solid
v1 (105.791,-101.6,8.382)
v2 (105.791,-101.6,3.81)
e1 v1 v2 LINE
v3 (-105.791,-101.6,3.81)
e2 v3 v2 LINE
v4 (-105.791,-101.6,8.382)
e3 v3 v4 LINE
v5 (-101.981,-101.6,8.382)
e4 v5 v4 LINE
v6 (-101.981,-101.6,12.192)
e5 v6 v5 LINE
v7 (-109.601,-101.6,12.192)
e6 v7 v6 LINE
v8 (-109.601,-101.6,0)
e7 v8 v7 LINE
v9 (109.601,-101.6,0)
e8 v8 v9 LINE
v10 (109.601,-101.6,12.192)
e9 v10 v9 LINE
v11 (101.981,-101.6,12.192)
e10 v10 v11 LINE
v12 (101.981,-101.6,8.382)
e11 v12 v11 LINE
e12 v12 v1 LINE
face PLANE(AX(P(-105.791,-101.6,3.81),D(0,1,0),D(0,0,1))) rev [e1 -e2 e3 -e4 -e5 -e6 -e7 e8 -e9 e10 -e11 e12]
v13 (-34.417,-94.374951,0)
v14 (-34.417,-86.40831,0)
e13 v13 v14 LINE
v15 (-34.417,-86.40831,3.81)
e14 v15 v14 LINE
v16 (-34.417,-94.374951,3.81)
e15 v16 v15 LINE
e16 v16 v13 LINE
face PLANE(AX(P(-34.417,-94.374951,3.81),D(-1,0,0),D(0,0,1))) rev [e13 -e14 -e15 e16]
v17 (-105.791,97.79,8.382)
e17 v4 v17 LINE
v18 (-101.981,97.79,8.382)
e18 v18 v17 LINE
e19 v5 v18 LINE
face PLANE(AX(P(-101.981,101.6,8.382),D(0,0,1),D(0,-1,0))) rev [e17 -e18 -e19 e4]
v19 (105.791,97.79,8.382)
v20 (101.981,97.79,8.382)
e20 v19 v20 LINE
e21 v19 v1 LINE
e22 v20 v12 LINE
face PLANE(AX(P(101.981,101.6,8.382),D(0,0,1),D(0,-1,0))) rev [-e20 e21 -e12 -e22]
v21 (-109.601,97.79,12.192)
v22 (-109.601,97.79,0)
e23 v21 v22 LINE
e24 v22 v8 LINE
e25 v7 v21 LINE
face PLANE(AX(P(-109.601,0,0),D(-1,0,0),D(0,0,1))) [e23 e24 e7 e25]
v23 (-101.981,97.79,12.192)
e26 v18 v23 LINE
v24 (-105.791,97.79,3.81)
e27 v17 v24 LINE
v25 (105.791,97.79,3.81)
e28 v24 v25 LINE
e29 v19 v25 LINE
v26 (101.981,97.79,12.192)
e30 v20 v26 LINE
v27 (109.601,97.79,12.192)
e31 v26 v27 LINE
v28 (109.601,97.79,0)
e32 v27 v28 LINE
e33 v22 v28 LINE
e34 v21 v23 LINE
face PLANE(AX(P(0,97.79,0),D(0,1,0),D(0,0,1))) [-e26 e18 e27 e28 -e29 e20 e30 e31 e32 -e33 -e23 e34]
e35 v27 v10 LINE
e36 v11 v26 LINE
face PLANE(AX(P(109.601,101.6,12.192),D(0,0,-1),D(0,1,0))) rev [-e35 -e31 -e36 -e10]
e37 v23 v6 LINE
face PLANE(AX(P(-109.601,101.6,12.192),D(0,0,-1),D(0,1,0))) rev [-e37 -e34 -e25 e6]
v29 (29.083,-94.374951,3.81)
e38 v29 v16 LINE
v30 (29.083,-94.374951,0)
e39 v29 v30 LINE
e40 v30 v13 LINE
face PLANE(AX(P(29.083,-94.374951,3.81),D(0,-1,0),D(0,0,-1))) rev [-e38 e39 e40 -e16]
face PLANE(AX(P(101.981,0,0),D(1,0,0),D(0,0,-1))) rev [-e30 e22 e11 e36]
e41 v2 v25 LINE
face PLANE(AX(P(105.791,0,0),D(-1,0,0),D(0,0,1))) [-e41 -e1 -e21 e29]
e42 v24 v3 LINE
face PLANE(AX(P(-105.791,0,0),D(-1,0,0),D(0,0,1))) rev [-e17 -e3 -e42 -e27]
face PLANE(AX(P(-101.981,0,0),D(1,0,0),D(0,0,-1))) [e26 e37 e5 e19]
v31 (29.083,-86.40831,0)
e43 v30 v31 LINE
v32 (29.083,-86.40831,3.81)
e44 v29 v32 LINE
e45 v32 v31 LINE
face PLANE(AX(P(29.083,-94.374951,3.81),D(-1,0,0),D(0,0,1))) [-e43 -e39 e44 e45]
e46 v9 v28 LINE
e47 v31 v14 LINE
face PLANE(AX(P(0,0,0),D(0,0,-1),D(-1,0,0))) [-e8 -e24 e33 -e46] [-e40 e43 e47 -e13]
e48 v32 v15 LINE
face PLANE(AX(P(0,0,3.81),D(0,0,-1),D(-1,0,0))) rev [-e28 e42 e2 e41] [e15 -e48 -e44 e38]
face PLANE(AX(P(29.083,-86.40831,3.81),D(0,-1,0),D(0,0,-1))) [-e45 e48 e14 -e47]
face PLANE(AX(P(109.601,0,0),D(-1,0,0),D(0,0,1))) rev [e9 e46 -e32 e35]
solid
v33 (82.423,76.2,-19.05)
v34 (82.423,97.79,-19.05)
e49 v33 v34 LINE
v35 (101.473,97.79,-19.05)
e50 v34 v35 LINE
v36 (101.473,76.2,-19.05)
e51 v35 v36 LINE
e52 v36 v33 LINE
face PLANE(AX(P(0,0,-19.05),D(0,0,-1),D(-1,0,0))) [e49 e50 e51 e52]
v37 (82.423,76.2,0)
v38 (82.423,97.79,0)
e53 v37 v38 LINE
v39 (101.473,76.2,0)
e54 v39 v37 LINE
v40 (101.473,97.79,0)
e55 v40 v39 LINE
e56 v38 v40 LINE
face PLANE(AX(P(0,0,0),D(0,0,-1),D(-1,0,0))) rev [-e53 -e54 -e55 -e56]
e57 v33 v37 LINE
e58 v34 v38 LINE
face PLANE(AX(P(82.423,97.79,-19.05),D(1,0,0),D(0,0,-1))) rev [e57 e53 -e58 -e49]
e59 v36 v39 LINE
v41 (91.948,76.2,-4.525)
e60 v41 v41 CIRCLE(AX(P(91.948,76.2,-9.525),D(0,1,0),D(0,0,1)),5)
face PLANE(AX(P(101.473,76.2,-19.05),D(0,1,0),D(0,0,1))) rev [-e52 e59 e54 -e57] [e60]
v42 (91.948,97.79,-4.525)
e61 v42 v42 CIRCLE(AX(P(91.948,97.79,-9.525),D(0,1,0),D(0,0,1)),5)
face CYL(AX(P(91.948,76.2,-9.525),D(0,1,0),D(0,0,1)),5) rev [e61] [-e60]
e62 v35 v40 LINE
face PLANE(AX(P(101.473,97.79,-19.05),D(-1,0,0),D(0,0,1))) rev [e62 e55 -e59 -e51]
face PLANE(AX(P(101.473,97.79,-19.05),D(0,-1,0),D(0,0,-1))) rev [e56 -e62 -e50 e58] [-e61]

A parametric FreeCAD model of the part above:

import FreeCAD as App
import Part
import Sketcher
from FreeCAD import Vector
Q = App.Units.Quantity


def add_polygon(sketch, points):
    """Adds a closed chain of lines whose ends are joined by coincident constraints."""
    first, n = sketch.GeometryCount, len(points)
    for a, b in zip(points, points[1:] + points[:1]):
        sketch.addGeometry(Part.LineSegment(App.Vector(*a, 0), App.Vector(*b, 0)), False)
    for i in range(n):
        sketch.addConstraint(Sketcher.Constraint("Coincident", first + i, 2, first + (i + 1) % n, 1))

doc = App.newDocument("Part")
body = doc.addObject("PartDesign::Body", "Body")

sketch1 = doc.addObject("Sketcher::SketchObject", "Sketch")
body.addObject(sketch1)
sketch1.AttachmentSupport = (doc.XY_Plane, [""])
sketch1.MapMode = "FlatFace"
add_polygon(sketch1, [(-105.791, 101.6), (-105.791, -101.6), (105.791, -101.6), (105.791, 101.6)])
sketch1.addConstraint([
    Sketcher.Constraint("Vertical", 0),
    Sketcher.Constraint("Horizontal", 1),
    Sketcher.Constraint("Vertical", 2),
    Sketcher.Constraint("Horizontal", 3),
    Sketcher.Constraint("Symmetric", 0, 2, 2, 2, -1, 1),
    Sketcher.Constraint("DistanceY", 0, 2, 0, 1, Q("8 in")),
    Sketcher.Constraint("DistanceX", 1, 1, 1, 2, Q("8.33 in")),
])
pad1 = doc.addObject("PartDesign::Pad", "Pad")
body.addObject(pad1)
pad1.Profile = sketch1
pad1.Length = Q("0.15 in")

sketch2 = doc.addObject("Sketcher::SketchObject", "Sketch001")
body.addObject(sketch2)
sketch2.AttachmentSupport = (doc.YZ_Plane, [""])
sketch2.MapMode = "FlatFace"
sketch2.AttachmentOffset = App.Placement(Vector(0, 0, -4.165 * 25.4), App.Rotation())
add_polygon(sketch2, [(101.6, 0), (-101.6, 0), (-101.6, 12.192), (101.6, 12.192)])
sketch2.addConstraint([
    Sketcher.Constraint("Horizontal", 0),
    Sketcher.Constraint("Vertical", 1),
    Sketcher.Constraint("Horizontal", 2),
    Sketcher.Constraint("Vertical", 3),
    Sketcher.Constraint("Symmetric", 0, 2, 3, 2, -1, 1),
    Sketcher.Constraint("DistanceX", 0, 2, 0, 1, Q("8 in")),
    Sketcher.Constraint("DistanceY", 1, 1, 1, 2, Q("0.48 in")),
])
pad2 = doc.addObject("PartDesign::Pad", "Pad001")
body.addObject(pad2)
pad2.Profile = sketch2
pad2.Length = Q("0.15 in")
pad2.Reversed = True

sketch3 = doc.addObject("Sketcher::SketchObject", "Sketch002")
body.addObject(sketch3)
sketch3.AttachmentSupport = (doc.YZ_Plane, [""])
sketch3.MapMode = "FlatFace"
sketch3.AttachmentOffset = App.Placement(Vector(0, 0, 4.165 * 25.4), App.Rotation())
add_polygon(sketch3, [(101.6, 12.192), (-101.6, 12.192), (-101.6, 0), (101.6, 0)])
sketch3.addConstraint([
    Sketcher.Constraint("Horizontal", 0),
    Sketcher.Constraint("Vertical", 1),
    Sketcher.Constraint("Horizontal", 2),
    Sketcher.Constraint("Vertical", 3),
    Sketcher.Constraint("Symmetric", 1, 2, 2, 2, -1, 1),
    Sketcher.Constraint("DistanceX", 0, 2, 0, 1, Q("8 in")),
    Sketcher.Constraint("DistanceY", 1, 2, 1, 1, Q("0.48 in")),
])
pad3 = doc.addObject("PartDesign::Pad", "Pad002")
body.addObject(pad3)
pad3.Profile = sketch3
pad3.Length = Q("0.15 in")

sketch4 = doc.addObject("Sketcher::SketchObject", "Sketch003")
body.addObject(sketch4)
sketch4.AttachmentSupport = (doc.YZ_Plane, [""])
sketch4.MapMode = "FlatFace"
sketch4.AttachmentOffset = App.Placement(Vector(0, 0, 4.165 * 25.4), App.Rotation())
add_polygon(sketch4, [(101.6, 8.382), (-101.6, 8.382), (-101.6, 12.192), (101.6, 12.192)])
sketch4.addConstraint([
    Sketcher.Constraint("Horizontal", 0),
    Sketcher.Constraint("Vertical", 1),
    Sketcher.Constraint("Horizontal", 2),
    Sketcher.Constraint("Vertical", 3),
    Sketcher.Constraint("DistanceX", 0, 2, 0, 1, Q("8 in")),
    Sketcher.Constraint("DistanceX", 0, 2, -1, 1, Q("4 in")),
    Sketcher.Constraint("DistanceY", 1, 1, 1, 2, Q("0.15 in")),
    Sketcher.Constraint("DistanceY", -1, 1, 0, 2, Q("0.33 in")),
])
pad4 = doc.addObject("PartDesign::Pad", "Pad003")
body.addObject(pad4)
pad4.Profile = sketch4
pad4.Length = Q("0.15 in")
pad4.Reversed = True

sketch5 = doc.addObject("Sketcher::SketchObject", "Sketch004")
body.addObject(sketch5)
sketch5.AttachmentSupport = (doc.YZ_Plane, [""])
sketch5.MapMode = "FlatFace"
sketch5.AttachmentOffset = App.Placement(Vector(0, 0, -4.165 * 25.4), App.Rotation())
add_polygon(sketch5, [(101.6, 12.192), (-101.6, 12.192), (-101.6, 8.382), (101.6, 8.382)])
sketch5.addConstraint([
    Sketcher.Constraint("Horizontal", 0),
    Sketcher.Constraint("Vertical", 1),
    Sketcher.Constraint("Horizontal", 2),
    Sketcher.Constraint("Vertical", 3),
    Sketcher.Constraint("DistanceX", 0, 2, 0, 1, Q("8 in")),
    Sketcher.Constraint("DistanceX", 0, 2, -1, 1, Q("4 in")),
    Sketcher.Constraint("DistanceY", 1, 2, 1, 1, Q("0.15 in")),
    Sketcher.Constraint("DistanceY", -1, 1, 0, 2, Q("0.48 in")),
])
pad5 = doc.addObject("PartDesign::Pad", "Pad004")
body.addObject(pad5)
pad5.Profile = sketch5
pad5.Length = Q("0.15 in")

sketch6 = doc.addObject("Sketcher::SketchObject", "Sketch005")
body.addObject(sketch6)
sketch6.AttachmentSupport = (doc.XZ_Plane, [""])
sketch6.MapMode = "FlatFace"
sketch6.AttachmentOffset = App.Placement(Vector(0, 0, -4 * 25.4), App.Rotation())
add_polygon(sketch6, [(-131.326085, -29.890784), (-131.326085, 33.435782), (122.785861, 33.435782), (122.785861, -29.890784)])
sketch6.addConstraint([
    Sketcher.Constraint("Vertical", 0),
    Sketcher.Constraint("Horizontal", 1),
    Sketcher.Constraint("Vertical", 2),
    Sketcher.Constraint("Horizontal", 3),
    Sketcher.Constraint("DistanceX", 1, 1, 1, 2, 254.111946),
    Sketcher.Constraint("DistanceY", 0, 1, 0, 2, 63.326566),
    Sketcher.Constraint("DistanceX", -1, 1, 1, 2, 122.785861),
    Sketcher.Constraint("DistanceY", -1, 1, 0, 2, 33.435782),
])
pocket1 = doc.addObject("PartDesign::Pocket", "Pocket")
body.addObject(pocket1)
pocket1.Profile = sketch6
pocket1.Length = Q("0.15 in")
pocket1.Reversed = True

sketch7 = doc.addObject("Sketcher::SketchObject", "Sketch006")
body.addObject(sketch7)
sketch7.AttachmentSupport = (doc.XY_Plane, [""])
sketch7.MapMode = "FlatFace"
add_polygon(sketch7, [(29.083, -86.40831), (29.083, -94.374951), (-34.417, -94.374951), (-34.417, -86.40831)])
sketch7.addConstraint([
    Sketcher.Constraint("Vertical", 0),
    Sketcher.Constraint("Horizontal", 1),
    Sketcher.Constraint("Vertical", 2),
    Sketcher.Constraint("Horizontal", 3),
    Sketcher.Constraint("DistanceX", 1, 2, 1, 1, Q("2.5 in")),
    Sketcher.Constraint("DistanceX", -1, 1, 0, 2, Q("1.145 in")),
    Sketcher.Constraint("DistanceY", 0, 2, 0, 1, 7.966642),
    Sketcher.Constraint("DistanceY", 0, 2, -1, 1, 94.374951),
])
pocket2 = doc.addObject("PartDesign::Pocket", "Pocket001")
body.addObject(pocket2)
pocket2.Profile = sketch7
pocket2.Length = Q("0.15 in")
pocket2.Reversed = True
body2 = doc.addObject("PartDesign::Body", "Body001")

sketch8 = doc.addObject("Sketcher::SketchObject", "Sketch007")
body2.addObject(sketch8)
sketch8.AttachmentSupport = (doc.getObject("XY_Plane001"), [""])
sketch8.MapMode = "FlatFace"
add_polygon(sketch8, [(101.473, 97.79), (101.473, 76.2), (82.423, 76.2), (82.423, 97.79)])
sketch8.addConstraint([
    Sketcher.Constraint("Vertical", 0),
    Sketcher.Constraint("Horizontal", 1),
    Sketcher.Constraint("Vertical", 2),
    Sketcher.Constraint("Horizontal", 3),
    Sketcher.Constraint("DistanceY", -1, 1, 0, 2, Q("3 in")),
    Sketcher.Constraint("DistanceX", 1, 2, 1, 1, Q("0.75 in")),
    Sketcher.Constraint("DistanceY", 0, 2, 0, 1, Q("0.85 in")),
    Sketcher.Constraint("DistanceX", -1, 1, 0, 2, Q("3.995 in")),
])
pad6 = doc.addObject("PartDesign::Pad", "Pad005")
body2.addObject(pad6)
pad6.Profile = sketch8
pad6.Length = Q("0.75 in")
pad6.Reversed = True

sketch9 = doc.addObject("Sketcher::SketchObject", "Sketch008")
body2.addObject(sketch9)
sketch9.AttachmentSupport = (doc.getObject("XZ_Plane001"), [""])
sketch9.MapMode = "FlatFace"
sketch9.AttachmentOffset = App.Placement(Vector(0, 0, -3.85 * 25.4), App.Rotation())
sketch9.addGeometry(Part.Circle(Vector(91.948, -9.525, 0), Vector(0, 0, 1), 5), False)
sketch9.addConstraint([
    Sketcher.Constraint("Diameter", 0, 10.0),
    Sketcher.Constraint("DistanceX", -1, 1, 0, 3, Q("3.62 in")),
    Sketcher.Constraint("DistanceY", 0, 3, -1, 1, Q("0.375 in")),
])
pocket3 = doc.addObject("PartDesign::Pocket", "Pocket002")
body2.addObject(pocket3)
pocket3.Profile = sketch9
pocket3.Length = Q("0.85 in")
pocket3.Reversed = True

doc.recompute()
